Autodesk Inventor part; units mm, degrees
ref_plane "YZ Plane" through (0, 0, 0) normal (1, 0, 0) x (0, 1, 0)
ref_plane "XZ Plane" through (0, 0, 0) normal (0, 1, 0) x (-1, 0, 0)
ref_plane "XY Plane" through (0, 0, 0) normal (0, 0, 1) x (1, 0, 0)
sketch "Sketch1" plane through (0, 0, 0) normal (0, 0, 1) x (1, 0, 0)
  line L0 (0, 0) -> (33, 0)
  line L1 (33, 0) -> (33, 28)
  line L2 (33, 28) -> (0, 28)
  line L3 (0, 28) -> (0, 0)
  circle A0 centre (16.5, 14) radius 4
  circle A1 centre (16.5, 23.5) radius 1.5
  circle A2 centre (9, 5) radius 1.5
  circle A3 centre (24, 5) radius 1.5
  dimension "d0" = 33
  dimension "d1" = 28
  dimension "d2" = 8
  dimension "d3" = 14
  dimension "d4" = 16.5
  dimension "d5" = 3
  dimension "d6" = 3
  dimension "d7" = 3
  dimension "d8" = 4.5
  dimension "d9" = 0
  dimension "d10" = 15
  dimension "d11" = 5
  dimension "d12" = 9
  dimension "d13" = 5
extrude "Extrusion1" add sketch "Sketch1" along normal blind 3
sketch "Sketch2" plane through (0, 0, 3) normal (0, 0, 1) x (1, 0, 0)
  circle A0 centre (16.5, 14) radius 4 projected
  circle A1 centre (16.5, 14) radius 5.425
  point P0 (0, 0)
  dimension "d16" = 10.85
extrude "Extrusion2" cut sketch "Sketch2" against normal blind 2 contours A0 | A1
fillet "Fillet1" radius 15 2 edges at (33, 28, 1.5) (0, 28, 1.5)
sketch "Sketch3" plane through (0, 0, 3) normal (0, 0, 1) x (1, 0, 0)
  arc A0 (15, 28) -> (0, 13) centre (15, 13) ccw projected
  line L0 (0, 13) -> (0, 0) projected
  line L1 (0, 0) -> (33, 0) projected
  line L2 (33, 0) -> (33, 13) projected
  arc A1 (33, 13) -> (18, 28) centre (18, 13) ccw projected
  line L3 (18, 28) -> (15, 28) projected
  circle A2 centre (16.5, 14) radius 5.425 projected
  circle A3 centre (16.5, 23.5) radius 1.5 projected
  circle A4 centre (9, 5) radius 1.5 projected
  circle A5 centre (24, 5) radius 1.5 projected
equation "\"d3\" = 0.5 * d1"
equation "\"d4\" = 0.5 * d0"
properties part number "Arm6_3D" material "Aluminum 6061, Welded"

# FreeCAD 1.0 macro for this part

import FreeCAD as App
import Part
import Sketcher

V = App.Vector
Q = App.Units.Quantity


def edges_at(feature, points):
    """Names of the edges that pass closest to the given points."""
    edges = feature.Shape.Edges
    near = lambda p: min(range(len(edges)), key=lambda i: edges[i].distToShape(Part.Vertex(*p))[0])
    return sorted({f"Edge{near(p) + 1}" for p in points})

doc = App.newDocument("Part")
body = doc.addObject("PartDesign::Body", "Body")

sketch1 = doc.addObject("Sketcher::SketchObject", "Sketch")
body.addObject(sketch1)
sketch1.AttachmentSupport = (doc.XY_Plane, [""])
sketch1.MapMode = "FlatFace"
sketch1.addGeometry([
    Part.LineSegment(V(0, 28, 0), V(0, 0, 0)),
    Part.LineSegment(V(0, 0, 0), V(33, 0, 0)),
    Part.LineSegment(V(33, 0, 0), V(33, 28, 0)),
    Part.LineSegment(V(33, 28, 0), V(0, 28, 0)),
    Part.Circle(V(9, 5, 0), V(0, 0, 1), 1.5),
    Part.Circle(V(24, 5, 0), V(0, 0, 1), 1.5),
    Part.Circle(V(16.5, 14, 0), V(0, 0, 1), 4),
    Part.Circle(V(16.5, 23.5, 0), V(0, 0, 1), 1.5),
], False)
sketch1.addConstraint([
    Sketcher.Constraint("Coincident", 0, 2, 1, 1),
    Sketcher.Constraint("Coincident", 1, 2, 2, 1),
    Sketcher.Constraint("Coincident", 2, 2, 3, 1),
    Sketcher.Constraint("Coincident", 3, 2, 0, 1),
    Sketcher.Constraint("Vertical", 0),
    Sketcher.Constraint("Horizontal", 1),
    Sketcher.Constraint("Vertical", 2),
    Sketcher.Constraint("Horizontal", 3),
    Sketcher.Constraint("Coincident", 0, 2, -1, 1),
    Sketcher.Constraint("Equal", 4, 5),
    Sketcher.Constraint("Equal", 5, 7),
    Sketcher.Constraint("Horizontal", 4, 3, 5, 3),
    Sketcher.Constraint("Vertical", 6, 3, 7, 3),
    Sketcher.Constraint("Diameter", 4, Q("3 mm")),
    Sketcher.Constraint("Diameter", 6, Q("8 mm")),
    Sketcher.Constraint("DistanceX", 1, 1, 1, 2, Q("33 mm")),
    Sketcher.Constraint("DistanceY", 0, 2, 0, 1, Q("28 mm")),
    Sketcher.Constraint("DistanceX", -1, 1, 4, 3, Q("9 mm")),
    Sketcher.Constraint("DistanceY", -1, 1, 4, 3, Q("5 mm")),
    Sketcher.Constraint("DistanceY", -1, 1, 6, 3, Q("14 mm")),
    Sketcher.Constraint("DistanceX", 4, 3, 5, 3, Q("15 mm")),
    Sketcher.Constraint("DistanceX", -1, 1, 6, 3, Q("16.5 mm")),
    Sketcher.Constraint("DistanceY", 7, 3, 2, 2, Q("4.5 mm")),
])
pad1 = doc.addObject("PartDesign::Pad", "Pad")
body.addObject(pad1)
pad1.Profile = sketch1
pad1.Length = 3

sketch2 = doc.addObject("Sketcher::SketchObject", "Sketch001")
body.addObject(sketch2)
sketch2.AttachmentSupport = (doc.XY_Plane, [""])
sketch2.MapMode = "FlatFace"
sketch2.AttachmentOffset = App.Placement(V(0, 0, 3), App.Rotation())
sketch2.addGeometry(Part.Circle(V(16, 14, 0), V(0, 0, 1), 5), False)
sketch2.addConstraint([
    Sketcher.Constraint("Diameter", 0, Q("10.85 mm")),
    Sketcher.Constraint("DistanceY", -1, 1, 0, 3, Q("14 mm")),
    Sketcher.Constraint("DistanceX", -1, 1, 0, 3, Q("16.5 mm")),
])
pocket1 = doc.addObject("PartDesign::Pocket", "Pocket")
body.addObject(pocket1)
pocket1.Profile = sketch2
pocket1.Length = 2
doc.recompute()

fillet = doc.addObject("PartDesign::Fillet", "Fillet")
body.addObject(fillet)
fillet.Base = (pocket1, edges_at(pocket1, [(33, 28, 1.5), (0, 28, 1.5)]))
fillet.Radius = 15

doc.recompute()
